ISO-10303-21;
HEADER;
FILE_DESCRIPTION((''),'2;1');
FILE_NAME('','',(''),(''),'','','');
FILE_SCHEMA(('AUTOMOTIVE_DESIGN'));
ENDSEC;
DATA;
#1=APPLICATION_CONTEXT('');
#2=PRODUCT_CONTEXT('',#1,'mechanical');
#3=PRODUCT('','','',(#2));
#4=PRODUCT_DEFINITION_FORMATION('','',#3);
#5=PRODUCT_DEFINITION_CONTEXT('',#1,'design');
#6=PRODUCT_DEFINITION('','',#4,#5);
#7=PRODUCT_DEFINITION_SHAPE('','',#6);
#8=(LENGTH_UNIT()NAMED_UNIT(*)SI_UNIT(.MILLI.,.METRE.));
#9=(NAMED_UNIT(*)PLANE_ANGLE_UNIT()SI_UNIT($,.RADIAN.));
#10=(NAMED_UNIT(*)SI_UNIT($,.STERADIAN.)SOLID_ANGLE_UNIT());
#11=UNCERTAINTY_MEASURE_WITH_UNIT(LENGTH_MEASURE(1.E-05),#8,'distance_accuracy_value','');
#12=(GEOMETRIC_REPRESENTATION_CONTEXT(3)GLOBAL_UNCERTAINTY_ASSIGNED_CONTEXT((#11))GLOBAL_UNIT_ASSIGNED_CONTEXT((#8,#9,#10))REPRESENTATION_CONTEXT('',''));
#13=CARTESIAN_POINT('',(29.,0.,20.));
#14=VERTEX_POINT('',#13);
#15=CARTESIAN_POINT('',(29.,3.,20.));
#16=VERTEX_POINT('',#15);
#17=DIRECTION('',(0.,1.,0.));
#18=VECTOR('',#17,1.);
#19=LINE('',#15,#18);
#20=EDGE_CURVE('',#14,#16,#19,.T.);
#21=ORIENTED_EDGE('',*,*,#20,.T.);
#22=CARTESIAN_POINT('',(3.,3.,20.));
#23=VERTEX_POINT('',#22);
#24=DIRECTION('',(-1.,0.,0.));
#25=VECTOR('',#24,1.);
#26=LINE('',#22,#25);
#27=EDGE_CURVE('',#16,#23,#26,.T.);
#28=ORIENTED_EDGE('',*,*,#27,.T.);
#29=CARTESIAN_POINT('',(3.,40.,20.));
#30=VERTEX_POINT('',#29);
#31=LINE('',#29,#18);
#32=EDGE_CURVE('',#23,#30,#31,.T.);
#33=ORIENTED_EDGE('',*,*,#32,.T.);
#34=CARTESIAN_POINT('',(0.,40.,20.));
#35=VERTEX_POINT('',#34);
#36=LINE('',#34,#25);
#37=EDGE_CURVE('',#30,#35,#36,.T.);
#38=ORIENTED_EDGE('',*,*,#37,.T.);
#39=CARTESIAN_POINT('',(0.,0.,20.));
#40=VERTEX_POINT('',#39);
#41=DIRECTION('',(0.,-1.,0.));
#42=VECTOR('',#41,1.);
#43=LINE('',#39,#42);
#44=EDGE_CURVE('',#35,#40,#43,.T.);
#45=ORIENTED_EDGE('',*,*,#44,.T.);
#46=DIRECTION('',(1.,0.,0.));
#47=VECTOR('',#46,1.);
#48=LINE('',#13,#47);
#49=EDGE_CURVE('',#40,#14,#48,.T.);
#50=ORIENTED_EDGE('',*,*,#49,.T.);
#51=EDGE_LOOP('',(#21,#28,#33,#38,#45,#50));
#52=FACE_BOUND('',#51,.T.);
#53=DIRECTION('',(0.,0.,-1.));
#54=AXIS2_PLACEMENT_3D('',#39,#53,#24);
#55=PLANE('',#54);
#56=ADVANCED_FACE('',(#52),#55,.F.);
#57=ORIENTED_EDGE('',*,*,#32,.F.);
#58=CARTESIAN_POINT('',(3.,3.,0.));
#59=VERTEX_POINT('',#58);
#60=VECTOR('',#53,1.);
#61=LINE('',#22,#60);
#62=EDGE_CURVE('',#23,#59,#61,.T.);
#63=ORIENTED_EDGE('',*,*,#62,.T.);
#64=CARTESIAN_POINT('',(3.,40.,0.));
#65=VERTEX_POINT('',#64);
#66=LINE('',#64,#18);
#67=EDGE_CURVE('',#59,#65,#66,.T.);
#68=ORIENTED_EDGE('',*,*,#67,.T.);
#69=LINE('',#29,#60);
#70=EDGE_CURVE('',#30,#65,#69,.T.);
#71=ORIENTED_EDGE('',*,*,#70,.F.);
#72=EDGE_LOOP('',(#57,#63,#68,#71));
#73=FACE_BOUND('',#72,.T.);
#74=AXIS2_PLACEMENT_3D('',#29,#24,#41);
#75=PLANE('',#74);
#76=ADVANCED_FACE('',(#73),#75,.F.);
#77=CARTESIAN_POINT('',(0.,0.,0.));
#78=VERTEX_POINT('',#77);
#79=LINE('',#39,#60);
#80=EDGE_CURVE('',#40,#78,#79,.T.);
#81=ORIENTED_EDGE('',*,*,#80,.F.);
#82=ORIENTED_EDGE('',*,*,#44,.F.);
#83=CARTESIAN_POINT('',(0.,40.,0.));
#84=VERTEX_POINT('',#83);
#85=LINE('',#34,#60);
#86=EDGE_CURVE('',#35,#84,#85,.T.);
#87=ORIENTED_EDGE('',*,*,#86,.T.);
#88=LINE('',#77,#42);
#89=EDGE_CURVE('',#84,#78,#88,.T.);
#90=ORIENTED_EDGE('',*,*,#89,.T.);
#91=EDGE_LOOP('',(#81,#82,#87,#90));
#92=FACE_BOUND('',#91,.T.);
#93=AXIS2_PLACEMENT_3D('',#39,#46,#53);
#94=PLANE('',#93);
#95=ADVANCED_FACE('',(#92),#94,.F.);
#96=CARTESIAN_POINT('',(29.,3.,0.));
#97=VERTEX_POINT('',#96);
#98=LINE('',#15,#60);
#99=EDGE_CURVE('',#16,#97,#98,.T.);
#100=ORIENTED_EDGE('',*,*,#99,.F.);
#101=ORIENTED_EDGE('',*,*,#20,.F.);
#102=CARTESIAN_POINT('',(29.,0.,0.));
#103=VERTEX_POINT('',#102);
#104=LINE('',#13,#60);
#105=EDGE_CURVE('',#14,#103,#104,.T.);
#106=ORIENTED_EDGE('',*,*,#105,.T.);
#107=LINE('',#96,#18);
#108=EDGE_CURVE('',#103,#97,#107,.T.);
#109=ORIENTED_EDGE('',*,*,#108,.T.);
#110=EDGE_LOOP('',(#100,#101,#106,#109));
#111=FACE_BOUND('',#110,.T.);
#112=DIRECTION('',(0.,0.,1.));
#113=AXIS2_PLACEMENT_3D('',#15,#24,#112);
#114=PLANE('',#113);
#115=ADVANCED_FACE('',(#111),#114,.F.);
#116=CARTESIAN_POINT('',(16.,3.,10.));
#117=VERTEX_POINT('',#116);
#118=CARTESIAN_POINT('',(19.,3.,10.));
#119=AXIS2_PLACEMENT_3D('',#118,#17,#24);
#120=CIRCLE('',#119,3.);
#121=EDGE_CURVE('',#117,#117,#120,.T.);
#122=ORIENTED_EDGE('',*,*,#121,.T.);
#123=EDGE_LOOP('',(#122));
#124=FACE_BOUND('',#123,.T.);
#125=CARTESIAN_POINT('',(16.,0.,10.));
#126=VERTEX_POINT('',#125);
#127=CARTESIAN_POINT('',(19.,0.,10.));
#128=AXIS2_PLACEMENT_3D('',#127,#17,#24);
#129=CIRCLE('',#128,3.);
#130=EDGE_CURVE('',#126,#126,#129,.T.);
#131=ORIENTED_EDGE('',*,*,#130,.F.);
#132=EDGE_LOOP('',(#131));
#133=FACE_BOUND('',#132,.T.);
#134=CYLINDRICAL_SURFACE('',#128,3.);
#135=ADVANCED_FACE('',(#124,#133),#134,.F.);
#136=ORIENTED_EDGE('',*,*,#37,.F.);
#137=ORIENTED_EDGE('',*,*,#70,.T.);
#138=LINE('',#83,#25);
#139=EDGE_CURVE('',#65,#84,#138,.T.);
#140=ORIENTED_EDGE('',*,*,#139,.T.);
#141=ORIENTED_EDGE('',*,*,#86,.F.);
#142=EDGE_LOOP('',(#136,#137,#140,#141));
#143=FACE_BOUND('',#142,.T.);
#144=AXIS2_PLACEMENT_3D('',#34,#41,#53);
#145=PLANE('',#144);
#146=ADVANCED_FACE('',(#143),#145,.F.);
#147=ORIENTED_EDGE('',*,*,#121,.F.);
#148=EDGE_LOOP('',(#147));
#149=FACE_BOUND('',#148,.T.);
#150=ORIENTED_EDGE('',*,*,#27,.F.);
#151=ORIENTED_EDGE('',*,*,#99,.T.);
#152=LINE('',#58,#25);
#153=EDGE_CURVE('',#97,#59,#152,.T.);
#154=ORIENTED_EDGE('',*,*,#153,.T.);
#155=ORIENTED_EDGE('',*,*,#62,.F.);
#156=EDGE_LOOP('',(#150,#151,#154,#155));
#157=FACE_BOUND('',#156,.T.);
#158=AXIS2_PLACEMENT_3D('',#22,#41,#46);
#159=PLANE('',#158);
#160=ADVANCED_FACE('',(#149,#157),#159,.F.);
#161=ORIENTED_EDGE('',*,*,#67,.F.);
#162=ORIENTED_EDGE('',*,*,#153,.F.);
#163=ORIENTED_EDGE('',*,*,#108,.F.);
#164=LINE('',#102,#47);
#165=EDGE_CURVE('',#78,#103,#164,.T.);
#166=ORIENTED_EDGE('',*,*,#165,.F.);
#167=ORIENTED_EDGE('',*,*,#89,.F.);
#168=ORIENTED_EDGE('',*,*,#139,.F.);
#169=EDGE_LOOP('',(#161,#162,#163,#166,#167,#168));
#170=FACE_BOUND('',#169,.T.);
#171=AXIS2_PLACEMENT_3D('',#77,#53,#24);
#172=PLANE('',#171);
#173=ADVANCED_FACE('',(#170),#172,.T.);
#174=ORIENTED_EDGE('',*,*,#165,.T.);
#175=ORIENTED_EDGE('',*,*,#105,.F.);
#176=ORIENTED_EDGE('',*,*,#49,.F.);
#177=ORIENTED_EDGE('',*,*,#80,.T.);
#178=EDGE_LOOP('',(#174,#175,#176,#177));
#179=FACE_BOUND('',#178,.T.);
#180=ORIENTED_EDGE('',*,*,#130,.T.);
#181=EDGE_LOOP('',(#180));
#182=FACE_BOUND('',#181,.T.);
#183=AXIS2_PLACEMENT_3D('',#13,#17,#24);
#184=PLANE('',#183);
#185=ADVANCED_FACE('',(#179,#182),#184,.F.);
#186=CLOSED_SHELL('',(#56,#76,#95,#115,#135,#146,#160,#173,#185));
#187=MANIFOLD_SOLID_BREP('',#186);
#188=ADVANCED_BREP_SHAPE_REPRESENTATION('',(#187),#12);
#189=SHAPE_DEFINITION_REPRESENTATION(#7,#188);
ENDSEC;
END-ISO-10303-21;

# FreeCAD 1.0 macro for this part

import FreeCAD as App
import Part
import Sketcher

V = App.Vector


def add_polygon(sketch, points):
    """Adds a closed chain of lines whose ends are joined by coincident constraints."""
    first, n = sketch.GeometryCount, len(points)
    for a, b in zip(points, points[1:] + points[:1]):
        sketch.addGeometry(Part.LineSegment(App.Vector(*a, 0), App.Vector(*b, 0)), False)
    for i in range(n):
        sketch.addConstraint(Sketcher.Constraint("Coincident", first + i, 2, first + (i + 1) % n, 1))

doc = App.newDocument("Part")
params = doc.addObject("Spreadsheet::Sheet", "Params")
for row, (alias, value) in enumerate([
    ("sketch1_width", "29 mm"),
    ("sketch1_width2", "26 mm"),
    ("sketch1_height", "40 mm"),
    ("pad1_length", "20 mm"),
    ("sketch2_diameter", "6 mm"),
], start=1):
    params.set(f"A{row}", alias)
    params.set(f"B{row}", "=" + value)
    params.setAlias(f"B{row}", alias)

body = doc.addObject("PartDesign::Body", "Body")

sketch1 = body.newObject("Sketcher::SketchObject", "Sketch")
sketch1.AttachmentSupport = (doc.getObject("XY_Plane"), [""])
sketch1.MapMode = "FlatFace"
add_polygon(sketch1, [(0, 40), (0, 0), (29, 0), (29, 3), (3, 3), (3, 40)])
sketch1.addConstraint(Sketcher.Constraint("Vertical", 0))
sketch1.addConstraint(Sketcher.Constraint("Horizontal", 1))
sketch1.addConstraint(Sketcher.Constraint("Vertical", 2))
sketch1.addConstraint(Sketcher.Constraint("Horizontal", 3))
sketch1.addConstraint(Sketcher.Constraint("Vertical", 4))
sketch1.addConstraint(Sketcher.Constraint("Horizontal", 5))
sketch1.addConstraint(Sketcher.Constraint("Coincident", 0, 2, -1, 1))
sketch1.addConstraint(Sketcher.Constraint("Equal", 5, 2))
sketch1.addConstraint(Sketcher.Constraint("DistanceX", 1, 1, 1, 2, 29.0))
sketch1.addConstraint(Sketcher.Constraint("DistanceX", 3, 2, 3, 1, 26.0))
sketch1.addConstraint(Sketcher.Constraint("DistanceY", 0, 2, 0, 1, 40.0))
sketch1.setExpression("Constraints[14]", "Params.sketch1_width")
sketch1.setExpression("Constraints[15]", "Params.sketch1_width2")
sketch1.setExpression("Constraints[16]", "Params.sketch1_height")
pad1 = body.newObject("PartDesign::Pad", "Pad")
pad1.Profile = sketch1
pad1.setExpression("Length", "Params.pad1_length")

sketch2 = body.newObject("Sketcher::SketchObject", "Sketch001")
sketch2.AttachmentSupport = (doc.getObject("XZ_Plane"), [""])
sketch2.MapMode = "FlatFace"
sketch2.AttachmentOffset = App.Placement(V(0, 0, -3), App.Rotation())
sketch2.addGeometry(Part.Circle(V(19, 10, 0), V(0, 0, 1), 3), False)
sketch2.addConstraint(Sketcher.Constraint("Diameter", 0, 6.0))
sketch2.addConstraint(Sketcher.Constraint("DistanceX", -1, 1, 0, 3, 19.0))
sketch2.addConstraint(Sketcher.Constraint("DistanceY", -1, 1, 0, 3, 10.0))
sketch2.setExpression("Constraints[0]", "Params.sketch2_diameter")
pocket1 = body.newObject("PartDesign::Pocket", "Pocket")
pocket1.Profile = sketch2
pocket1.Type = "ThroughAll"
pocket1.Reversed = True

doc.recompute()
